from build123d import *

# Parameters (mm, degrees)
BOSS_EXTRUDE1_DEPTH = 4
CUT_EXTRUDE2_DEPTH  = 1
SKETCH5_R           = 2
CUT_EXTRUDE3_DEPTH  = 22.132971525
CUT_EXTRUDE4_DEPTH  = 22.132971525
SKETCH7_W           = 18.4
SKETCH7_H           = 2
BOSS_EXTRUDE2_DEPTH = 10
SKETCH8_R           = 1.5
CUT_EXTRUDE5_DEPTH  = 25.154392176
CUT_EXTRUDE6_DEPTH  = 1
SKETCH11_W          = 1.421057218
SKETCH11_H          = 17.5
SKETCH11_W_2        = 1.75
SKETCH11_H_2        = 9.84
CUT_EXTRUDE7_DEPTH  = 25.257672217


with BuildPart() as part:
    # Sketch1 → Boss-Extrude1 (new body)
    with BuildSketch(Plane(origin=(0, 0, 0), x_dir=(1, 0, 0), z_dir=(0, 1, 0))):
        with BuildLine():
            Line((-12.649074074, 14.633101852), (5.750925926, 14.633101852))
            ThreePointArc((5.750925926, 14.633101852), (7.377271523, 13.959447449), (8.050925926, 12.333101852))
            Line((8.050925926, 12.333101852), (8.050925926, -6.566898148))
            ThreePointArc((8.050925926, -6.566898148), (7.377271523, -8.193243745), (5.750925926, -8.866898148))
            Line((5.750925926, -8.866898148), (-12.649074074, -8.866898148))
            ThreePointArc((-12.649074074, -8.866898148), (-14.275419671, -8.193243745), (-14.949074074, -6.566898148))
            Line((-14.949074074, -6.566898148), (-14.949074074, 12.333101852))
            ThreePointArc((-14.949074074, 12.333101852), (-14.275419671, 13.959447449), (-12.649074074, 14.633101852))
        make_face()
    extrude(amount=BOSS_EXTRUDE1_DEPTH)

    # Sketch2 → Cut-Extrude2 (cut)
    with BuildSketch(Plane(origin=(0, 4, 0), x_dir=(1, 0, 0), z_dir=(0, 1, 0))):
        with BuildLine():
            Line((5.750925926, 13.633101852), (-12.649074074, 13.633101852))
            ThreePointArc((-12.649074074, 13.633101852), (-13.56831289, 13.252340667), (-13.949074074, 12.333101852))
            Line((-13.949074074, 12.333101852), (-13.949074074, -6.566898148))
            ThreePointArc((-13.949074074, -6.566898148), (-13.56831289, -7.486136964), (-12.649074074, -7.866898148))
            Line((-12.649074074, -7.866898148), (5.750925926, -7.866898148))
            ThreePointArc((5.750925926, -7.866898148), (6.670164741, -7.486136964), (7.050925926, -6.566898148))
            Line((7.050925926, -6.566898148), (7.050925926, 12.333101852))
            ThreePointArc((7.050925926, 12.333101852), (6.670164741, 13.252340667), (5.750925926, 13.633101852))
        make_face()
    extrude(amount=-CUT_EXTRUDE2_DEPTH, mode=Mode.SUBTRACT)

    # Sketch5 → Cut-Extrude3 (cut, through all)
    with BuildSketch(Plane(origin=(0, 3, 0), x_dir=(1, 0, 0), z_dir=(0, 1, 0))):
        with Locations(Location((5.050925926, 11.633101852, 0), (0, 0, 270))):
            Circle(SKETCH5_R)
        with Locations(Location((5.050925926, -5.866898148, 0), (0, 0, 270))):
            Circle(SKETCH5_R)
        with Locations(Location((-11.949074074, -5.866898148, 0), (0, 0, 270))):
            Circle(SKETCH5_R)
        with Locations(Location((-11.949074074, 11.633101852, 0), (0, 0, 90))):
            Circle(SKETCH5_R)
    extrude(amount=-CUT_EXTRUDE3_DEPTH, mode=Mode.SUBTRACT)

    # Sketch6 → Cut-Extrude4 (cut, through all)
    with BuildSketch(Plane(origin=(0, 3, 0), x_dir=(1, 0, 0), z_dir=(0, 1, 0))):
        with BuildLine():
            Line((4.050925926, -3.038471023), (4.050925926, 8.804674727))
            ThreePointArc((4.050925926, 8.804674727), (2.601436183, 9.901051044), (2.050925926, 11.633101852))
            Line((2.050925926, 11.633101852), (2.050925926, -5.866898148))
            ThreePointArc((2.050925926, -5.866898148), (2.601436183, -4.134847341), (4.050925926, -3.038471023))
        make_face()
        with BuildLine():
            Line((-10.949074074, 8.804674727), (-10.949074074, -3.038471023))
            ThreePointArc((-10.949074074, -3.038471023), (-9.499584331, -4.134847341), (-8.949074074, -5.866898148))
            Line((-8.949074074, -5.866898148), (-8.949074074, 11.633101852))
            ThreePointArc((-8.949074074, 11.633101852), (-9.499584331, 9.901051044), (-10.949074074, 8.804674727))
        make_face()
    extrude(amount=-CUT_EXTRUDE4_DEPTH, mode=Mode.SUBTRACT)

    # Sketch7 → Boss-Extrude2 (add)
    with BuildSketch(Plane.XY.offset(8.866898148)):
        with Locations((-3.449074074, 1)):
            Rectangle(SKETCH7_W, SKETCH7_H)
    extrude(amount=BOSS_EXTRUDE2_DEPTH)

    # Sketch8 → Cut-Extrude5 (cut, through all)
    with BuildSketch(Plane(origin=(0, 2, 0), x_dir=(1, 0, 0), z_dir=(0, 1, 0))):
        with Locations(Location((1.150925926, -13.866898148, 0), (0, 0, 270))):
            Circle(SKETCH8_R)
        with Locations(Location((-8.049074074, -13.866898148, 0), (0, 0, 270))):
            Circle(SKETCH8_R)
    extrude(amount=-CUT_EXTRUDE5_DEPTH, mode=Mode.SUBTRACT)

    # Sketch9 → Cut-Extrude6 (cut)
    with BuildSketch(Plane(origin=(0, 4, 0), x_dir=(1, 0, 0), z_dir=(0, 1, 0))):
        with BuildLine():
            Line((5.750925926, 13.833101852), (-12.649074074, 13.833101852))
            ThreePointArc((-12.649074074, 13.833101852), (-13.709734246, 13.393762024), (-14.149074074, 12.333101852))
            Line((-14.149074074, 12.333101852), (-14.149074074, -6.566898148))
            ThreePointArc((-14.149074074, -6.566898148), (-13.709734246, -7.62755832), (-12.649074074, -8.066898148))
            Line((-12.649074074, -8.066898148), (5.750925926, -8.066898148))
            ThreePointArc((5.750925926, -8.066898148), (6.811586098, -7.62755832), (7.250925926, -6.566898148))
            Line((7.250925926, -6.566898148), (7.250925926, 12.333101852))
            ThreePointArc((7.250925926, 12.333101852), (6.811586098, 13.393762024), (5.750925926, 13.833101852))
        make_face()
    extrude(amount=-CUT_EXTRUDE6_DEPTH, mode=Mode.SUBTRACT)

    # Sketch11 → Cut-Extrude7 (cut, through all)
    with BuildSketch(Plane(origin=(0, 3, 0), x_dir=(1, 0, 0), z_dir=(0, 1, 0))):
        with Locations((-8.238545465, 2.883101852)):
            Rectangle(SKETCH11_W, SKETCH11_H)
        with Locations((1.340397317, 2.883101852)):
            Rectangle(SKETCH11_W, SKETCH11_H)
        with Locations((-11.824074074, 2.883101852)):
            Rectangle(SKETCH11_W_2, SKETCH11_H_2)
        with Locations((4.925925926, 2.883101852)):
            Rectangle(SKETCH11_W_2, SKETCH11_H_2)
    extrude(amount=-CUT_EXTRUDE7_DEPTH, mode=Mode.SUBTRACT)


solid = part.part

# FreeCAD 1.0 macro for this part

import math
import FreeCAD as App
import Part
import Sketcher
from FreeCAD import Vector
Q = App.Units.Quantity

doc = App.newDocument("Part")
params = doc.addObject("Spreadsheet::Sheet", "Params")
for row, (alias, value) in enumerate([
    ("sketch1_radius", "2.3 mm"),
    ("sketch1_width", "18.4 mm"),
    ("sketch1_height", "18.9 mm"),
    ("pad1_length", "4 mm"),
    ("sketch2_radius", "1.3 mm"),
    ("sketch2_width", "18.4 mm"),
    ("sketch2_height", "18.9 mm"),
    ("pocket1_length", "1 mm"),
    ("sketch3_diameter", "4 mm"),
    ("sketch4_radius", "3 mm"),
    ("sketch4_height", "17.5 mm"),
    ("sketch5_height", "2 mm"),
    ("sketch5_width", "18.4 mm"),
    ("pad2_length", "10 mm"),
    ("sketch6_diameter", "3 mm"),
    ("sketch7_radius", "1.5 mm"),
    ("sketch7_width", "18.4 mm"),
    ("sketch7_height", "18.9 mm"),
    ("pocket5_length", "1 mm"),
    ("sketch8_height", "17.5 mm"),
    ("sketch8_width", "1.75 mm"),
    ("sketch8_height2", "9.84 mm"),
], start=1):
    params.set(f"A{row}", alias)
    params.set(f"B{row}", "=" + value)
    params.setAlias(f"B{row}", alias)

body = doc.addObject("PartDesign::Body", "Body")

# Sketch on XZ plane
sketch1 = doc.addObject("Sketcher::SketchObject", "Sketch")
body.addObject(sketch1)
sketch1.AttachmentSupport = (doc.XZ_Plane, [""])
sketch1.MapMode = "FlatFace"
sketch1.addGeometry([
    Part.LineSegment(Vector(5.750926, -14.633102, 0), Vector(-12.649074, -14.633102, 0)),  # 0
    Part.ArcOfCircle(Part.Circle(Vector(-12.649074, -12.333102, 0), Vector(0, 0, 1), 2.3), math.radians(180), math.radians(270)),  # 1
    Part.LineSegment(Vector(-14.949074, -12.333102, 0), Vector(-14.949074, 6.566898, 0)),  # 2
    Part.ArcOfCircle(Part.Circle(Vector(-12.649074, 6.566898, 0), Vector(0, 0, 1), 2.3), math.radians(90), math.radians(180)),  # 3
    Part.LineSegment(Vector(-12.649074, 8.866898, 0), Vector(5.750926, 8.866898, 0)),  # 4
    Part.ArcOfCircle(Part.Circle(Vector(5.750926, 6.566898, 0), Vector(0, 0, 1), 2.3), math.radians(0), math.radians(90)),  # 5
    Part.LineSegment(Vector(8.050926, 6.566898, 0), Vector(8.050926, -12.333102, 0)),  # 6
    Part.ArcOfCircle(Part.Circle(Vector(5.750926, -12.333102, 0), Vector(0, 0, 1), 2.3), math.radians(-90), math.radians(0)),  # 7
], False)
sketch1.addConstraint([
    Sketcher.Constraint("Tangent", 0, 2, 1, 2),
    Sketcher.Constraint("Tangent", 1, 1, 2, 1),
    Sketcher.Constraint("Tangent", 2, 2, 3, 2),
    Sketcher.Constraint("Tangent", 3, 1, 4, 1),
    Sketcher.Constraint("Tangent", 4, 2, 5, 2),
    Sketcher.Constraint("Tangent", 5, 1, 6, 1),
    Sketcher.Constraint("Tangent", 6, 2, 7, 2),
    Sketcher.Constraint("Tangent", 7, 1, 0, 1),
    Sketcher.Constraint("Horizontal", 0),
    Sketcher.Constraint("Vertical", 2),
    Sketcher.Constraint("Horizontal", 4),
    Sketcher.Constraint("Vertical", 6),
    Sketcher.Constraint("Equal", 1, 3),
    Sketcher.Constraint("Equal", 3, 5),
    Sketcher.Constraint("Equal", 5, 7),
    Sketcher.Constraint("Radius", 1, Q("2.3 mm")),
    Sketcher.Constraint("DistanceX", 0, 2, 0, 1, Q("18.4 mm")),
    Sketcher.Constraint("DistanceY", 2, 1, 2, 2, Q("18.9 mm")),
    Sketcher.Constraint("DistanceY", 1, 3, -1, 1, Q("12.333102 mm")),
    Sketcher.Constraint("DistanceX", 1, 3, -1, 1, Q("12.649074 mm")),
])
sketch1.setExpression("Constraints[15]", "Params.sketch1_radius")
sketch1.setExpression("Constraints[16]", "Params.sketch1_width")
sketch1.setExpression("Constraints[17]", "Params.sketch1_height")
pad1 = doc.addObject("PartDesign::Pad", "Pad")
body.addObject(pad1)
pad1.Profile = sketch1
pad1.setExpression("Length", "Params.pad1_length")
pad1.Reversed = True

# Sketch on XZ plane
sketch2 = doc.addObject("Sketcher::SketchObject", "Sketch001")
body.addObject(sketch2)
sketch2.AttachmentSupport = (doc.XZ_Plane, [""])
sketch2.MapMode = "FlatFace"
sketch2.AttachmentOffset = App.Placement(Vector(0, 0, -4), App.Rotation())
sketch2.addGeometry([
    Part.LineSegment(Vector(5.750926, -13.633102, 0), Vector(-12.649074, -13.633102, 0)),  # 0
    Part.ArcOfCircle(Part.Circle(Vector(-12.649074, -12.333102, 0), Vector(0, 0, 1), 1.3), math.radians(180), math.radians(270)),  # 1
    Part.LineSegment(Vector(-13.949074, -12.333102, 0), Vector(-13.949074, 6.566898, 0)),  # 2
    Part.ArcOfCircle(Part.Circle(Vector(-12.649074, 6.566898, 0), Vector(0, 0, 1), 1.3), math.radians(90), math.radians(180)),  # 3
    Part.LineSegment(Vector(-12.649074, 7.866898, 0), Vector(5.750926, 7.866898, 0)),  # 4
    Part.ArcOfCircle(Part.Circle(Vector(5.750926, 6.566898, 0), Vector(0, 0, 1), 1.3), math.radians(0), math.radians(90)),  # 5
    Part.LineSegment(Vector(7.050926, 6.566898, 0), Vector(7.050926, -12.333102, 0)),  # 6
    Part.ArcOfCircle(Part.Circle(Vector(5.750926, -12.333102, 0), Vector(0, 0, 1), 1.3), math.radians(-90), math.radians(0)),  # 7
], False)
sketch2.addConstraint([
    Sketcher.Constraint("Tangent", 0, 2, 1, 2),
    Sketcher.Constraint("Tangent", 1, 1, 2, 1),
    Sketcher.Constraint("Tangent", 2, 2, 3, 2),
    Sketcher.Constraint("Tangent", 3, 1, 4, 1),
    Sketcher.Constraint("Tangent", 4, 2, 5, 2),
    Sketcher.Constraint("Tangent", 5, 1, 6, 1),
    Sketcher.Constraint("Tangent", 6, 2, 7, 2),
    Sketcher.Constraint("Tangent", 7, 1, 0, 1),
    Sketcher.Constraint("Horizontal", 0),
    Sketcher.Constraint("Vertical", 2),
    Sketcher.Constraint("Horizontal", 4),
    Sketcher.Constraint("Vertical", 6),
    Sketcher.Constraint("Equal", 1, 3),
    Sketcher.Constraint("Equal", 3, 5),
    Sketcher.Constraint("Equal", 5, 7),
    Sketcher.Constraint("Radius", 1, Q("1.3 mm")),
    Sketcher.Constraint("DistanceX", 0, 2, 0, 1, Q("18.4 mm")),
    Sketcher.Constraint("DistanceY", 2, 1, 2, 2, Q("18.9 mm")),
    Sketcher.Constraint("DistanceY", 1, 3, -1, 1, Q("12.333102 mm")),
    Sketcher.Constraint("DistanceX", 1, 3, -1, 1, Q("12.649074 mm")),
])
sketch2.setExpression("Constraints[15]", "Params.sketch2_radius")
sketch2.setExpression("Constraints[16]", "Params.sketch2_width")
sketch2.setExpression("Constraints[17]", "Params.sketch2_height")
pocket1 = doc.addObject("PartDesign::Pocket", "Pocket")
body.addObject(pocket1)
pocket1.Profile = sketch2
pocket1.setExpression("Length", "Params.pocket1_length")
pocket1.Reversed = True

# Sketch on XZ plane
sketch3 = doc.addObject("Sketcher::SketchObject", "Sketch002")
body.addObject(sketch3)
sketch3.AttachmentSupport = (doc.XZ_Plane, [""])
sketch3.MapMode = "FlatFace"
sketch3.AttachmentOffset = App.Placement(Vector(0, 0, -3), App.Rotation())
sketch3.addGeometry([
    Part.Circle(Vector(5.050926, -11.633102, 0), Vector(0, 0, 1), 2),
    Part.Circle(Vector(5.050926, 5.866898, 0), Vector(0, 0, 1), 2),
    Part.Circle(Vector(-11.949074, 5.866898, 0), Vector(0, 0, 1), 2),
    Part.Circle(Vector(-11.949074, -11.633102, 0), Vector(0, 0, 1), 2),
], False)
sketch3.addConstraint([
    Sketcher.Constraint("Equal", 0, 1),
    Sketcher.Constraint("Equal", 1, 2),
    Sketcher.Constraint("Equal", 2, 3),
    Sketcher.Constraint("Horizontal", 1, 3, 2, 3),
    Sketcher.Constraint("Horizontal", 0, 3, 3, 3),
    Sketcher.Constraint("Vertical", 0, 3, 1, 3),
    Sketcher.Constraint("Vertical", 2, 3, 3, 3),
    Sketcher.Constraint("Diameter", 0, Q("4 mm")),
    Sketcher.Constraint("DistanceX", 2, 3, 1, 3, Q("17 mm")),
    Sketcher.Constraint("DistanceY", 0, 3, 1, 3, Q("17.5 mm")),
    Sketcher.Constraint("DistanceY", 0, 3, -1, 1, Q("11.633102 mm")),
    Sketcher.Constraint("DistanceX", -1, 1, 0, 3, Q("5.050926 mm")),
])
sketch3.setExpression("Constraints[7]", "Params.sketch3_diameter")
pocket2 = doc.addObject("PartDesign::Pocket", "Pocket001")
body.addObject(pocket2)
pocket2.Profile = sketch3
pocket2.Type = "ThroughAll"
pocket2.Reversed = True

# Sketch on XZ plane
sketch4 = doc.addObject("Sketcher::SketchObject", "Sketch003")
body.addObject(sketch4)
sketch4.AttachmentSupport = (doc.XZ_Plane, [""])
sketch4.MapMode = "FlatFace"
sketch4.AttachmentOffset = App.Placement(Vector(0, 0, -3), App.Rotation())
sketch4.addGeometry([
    Part.LineSegment(Vector(4.050926, 3.038471, 0), Vector(4.050926, -8.804675, 0)),  # 0
    Part.ArcOfCircle(Part.Circle(Vector(5.050926, -11.633102, 0), Vector(0, 0, 1), 3), math.radians(109.471221), math.radians(180)),  # 1
    Part.LineSegment(Vector(2.050926, -11.633102, 0), Vector(2.050926, 5.866898, 0)),  # 2
    Part.ArcOfCircle(Part.Circle(Vector(5.050926, 5.866898, 0), Vector(0, 0, 1), 3), math.radians(-180), math.radians(-109.471221)),  # 3
    Part.LineSegment(Vector(-10.949074, -8.804675, 0), Vector(-10.949074, 3.038471, 0)),  # 4
    Part.ArcOfCircle(Part.Circle(Vector(-11.949074, 5.866898, 0), Vector(0, 0, 1), 3), math.radians(-70.528779), math.radians(0)),  # 5
    Part.LineSegment(Vector(-8.949074, 5.866898, 0), Vector(-8.949074, -11.633102, 0)),  # 6
    Part.ArcOfCircle(Part.Circle(Vector(-11.949074, -11.633102, 0), Vector(0, 0, 1), 3), math.radians(0), math.radians(70.528779)),  # 7
], False)
sketch4.addConstraint([
    Sketcher.Constraint("Coincident", 0, 2, 1, 1),
    Sketcher.Constraint("Tangent", 1, 2, 2, 1),
    Sketcher.Constraint("Tangent", 2, 2, 3, 1),
    Sketcher.Constraint("Coincident", 3, 2, 0, 1),
    Sketcher.Constraint("Coincident", 4, 2, 5, 1),
    Sketcher.Constraint("Tangent", 5, 2, 6, 1),
    Sketcher.Constraint("Tangent", 6, 2, 7, 1),
    Sketcher.Constraint("Coincident", 7, 2, 4, 1),
    Sketcher.Constraint("Vertical", 0),
    Sketcher.Constraint("Vertical", 2),
    Sketcher.Constraint("Vertical", 4),
    Sketcher.Constraint("Vertical", 6),
    Sketcher.Constraint("Equal", 1, 3),
    Sketcher.Constraint("Equal", 3, 5),
    Sketcher.Constraint("Equal", 5, 7),
    Sketcher.Constraint("Horizontal", 3, 3, 5, 3),
    Sketcher.Constraint("Horizontal", 1, 3, 7, 3),
    Sketcher.Constraint("Horizontal", 3, 2, 4, 2),
    Sketcher.Constraint("Radius", 1, Q("3 mm")),
    Sketcher.Constraint("DistanceY", 2, 1, 2, 2, Q("17.5 mm")),
    Sketcher.Constraint("DistanceX", 5, 3, 3, 3, Q("17 mm")),
    Sketcher.Constraint("DistanceX", 0, 2, 1, 3, Q("1 mm")),
    Sketcher.Constraint("DistanceY", 1, 3, -1, 1, Q("11.633102 mm")),
    Sketcher.Constraint("DistanceX", -1, 1, 1, 3, Q("5.050926 mm")),
])
sketch4.setExpression("Constraints[18]", "Params.sketch4_radius")
sketch4.setExpression("Constraints[19]", "Params.sketch4_height")
pocket3 = doc.addObject("PartDesign::Pocket", "Pocket002")
body.addObject(pocket3)
pocket3.Profile = sketch4
pocket3.Type = "ThroughAll"
pocket3.Reversed = True

# Sketch on XY plane
sketch5 = doc.addObject("Sketcher::SketchObject", "Sketch004")
body.addObject(sketch5)
sketch5.AttachmentSupport = (doc.XY_Plane, [""])
sketch5.MapMode = "FlatFace"
sketch5.AttachmentOffset = App.Placement(Vector(0, 0, 8.866898), App.Rotation())
sketch5.addGeometry([
    Part.LineSegment(Vector(-12.649074, 2, 0), Vector(-12.649074, 0, 0)),
    Part.LineSegment(Vector(-12.649074, 0, 0), Vector(5.750926, 0, 0)),
    Part.LineSegment(Vector(5.750926, 0, 0), Vector(5.750926, 2, 0)),
    Part.LineSegment(Vector(5.750926, 2, 0), Vector(-12.649074, 2, 0)),
], False)
sketch5.addConstraint([
    Sketcher.Constraint("Coincident", 0, 2, 1, 1),
    Sketcher.Constraint("Coincident", 1, 2, 2, 1),
    Sketcher.Constraint("Coincident", 2, 2, 3, 1),
    Sketcher.Constraint("Coincident", 3, 2, 0, 1),
    Sketcher.Constraint("Vertical", 0),
    Sketcher.Constraint("Horizontal", 1),
    Sketcher.Constraint("Vertical", 2),
    Sketcher.Constraint("Horizontal", 3),
    Sketcher.Constraint("PointOnObject", 0, 2, -1),
    Sketcher.Constraint("DistanceY", 0, 2, 0, 1, Q("2 mm")),
    Sketcher.Constraint("DistanceX", 1, 1, 1, 2, Q("18.4 mm")),
    Sketcher.Constraint("DistanceX", 0, 2, -1, 1, Q("12.649074 mm")),
])
sketch5.setExpression("Constraints[9]", "Params.sketch5_height")
sketch5.setExpression("Constraints[10]", "Params.sketch5_width")
pad2 = doc.addObject("PartDesign::Pad", "Pad001")
body.addObject(pad2)
pad2.Profile = sketch5
pad2.setExpression("Length", "Params.pad2_length")

# Sketch on XZ plane
sketch6 = doc.addObject("Sketcher::SketchObject", "Sketch005")
body.addObject(sketch6)
sketch6.AttachmentSupport = (doc.XZ_Plane, [""])
sketch6.MapMode = "FlatFace"
sketch6.AttachmentOffset = App.Placement(Vector(0, 0, -2), App.Rotation())
sketch6.addGeometry([
    Part.Circle(Vector(1.150926, 13.866898, 0), Vector(0, 0, 1), 1.5),
    Part.Circle(Vector(-8.049074, 13.866898, 0), Vector(0, 0, 1), 1.5),
], False)
sketch6.addConstraint([
    Sketcher.Constraint("Equal", 0, 1),
    Sketcher.Constraint("Horizontal", 0, 3, 1, 3),
    Sketcher.Constraint("Diameter", 0, Q("3 mm")),
    Sketcher.Constraint("DistanceX", 1, 3, 0, 3, Q("9.2 mm")),
    Sketcher.Constraint("DistanceY", -1, 1, 0, 3, Q("13.866898 mm")),
    Sketcher.Constraint("DistanceX", -1, 1, 0, 3, Q("1.150926 mm")),
])
sketch6.setExpression("Constraints[2]", "Params.sketch6_diameter")
pocket4 = doc.addObject("PartDesign::Pocket", "Pocket003")
body.addObject(pocket4)
pocket4.Profile = sketch6
pocket4.Type = "ThroughAll"
pocket4.Reversed = True

# Sketch on XZ plane
sketch7 = doc.addObject("Sketcher::SketchObject", "Sketch006")
body.addObject(sketch7)
sketch7.AttachmentSupport = (doc.XZ_Plane, [""])
sketch7.MapMode = "FlatFace"
sketch7.AttachmentOffset = App.Placement(Vector(0, 0, -4), App.Rotation())
sketch7.addGeometry([
    Part.LineSegment(Vector(5.750926, -13.833102, 0), Vector(-12.649074, -13.833102, 0)),  # 0
    Part.ArcOfCircle(Part.Circle(Vector(-12.649074, -12.333102, 0), Vector(0, 0, 1), 1.5), math.radians(180), math.radians(270)),  # 1
    Part.LineSegment(Vector(-14.149074, -12.333102, 0), Vector(-14.149074, 6.566898, 0)),  # 2
    Part.ArcOfCircle(Part.Circle(Vector(-12.649074, 6.566898, 0), Vector(0, 0, 1), 1.5), math.radians(90), math.radians(180)),  # 3
    Part.LineSegment(Vector(-12.649074, 8.066898, 0), Vector(5.750926, 8.066898, 0)),  # 4
    Part.ArcOfCircle(Part.Circle(Vector(5.750926, 6.566898, 0), Vector(0, 0, 1), 1.5), math.radians(0), math.radians(90)),  # 5
    Part.LineSegment(Vector(7.250926, 6.566898, 0), Vector(7.250926, -12.333102, 0)),  # 6
    Part.ArcOfCircle(Part.Circle(Vector(5.750926, -12.333102, 0), Vector(0, 0, 1), 1.5), math.radians(-90), math.radians(0)),  # 7
], False)
sketch7.addConstraint([
    Sketcher.Constraint("Tangent", 0, 2, 1, 2),
    Sketcher.Constraint("Tangent", 1, 1, 2, 1),
    Sketcher.Constraint("Tangent", 2, 2, 3, 2),
    Sketcher.Constraint("Tangent", 3, 1, 4, 1),
    Sketcher.Constraint("Tangent", 4, 2, 5, 2),
    Sketcher.Constraint("Tangent", 5, 1, 6, 1),
    Sketcher.Constraint("Tangent", 6, 2, 7, 2),
    Sketcher.Constraint("Tangent", 7, 1, 0, 1),
    Sketcher.Constraint("Horizontal", 0),
    Sketcher.Constraint("Vertical", 2),
    Sketcher.Constraint("Horizontal", 4),
    Sketcher.Constraint("Vertical", 6),
    Sketcher.Constraint("Equal", 1, 3),
    Sketcher.Constraint("Equal", 3, 5),
    Sketcher.Constraint("Equal", 5, 7),
    Sketcher.Constraint("Radius", 1, Q("1.5 mm")),
    Sketcher.Constraint("DistanceX", 0, 2, 0, 1, Q("18.4 mm")),
    Sketcher.Constraint("DistanceY", 2, 1, 2, 2, Q("18.9 mm")),
    Sketcher.Constraint("DistanceY", 1, 3, -1, 1, Q("12.333102 mm")),
    Sketcher.Constraint("DistanceX", 1, 3, -1, 1, Q("12.649074 mm")),
])
sketch7.setExpression("Constraints[15]", "Params.sketch7_radius")
sketch7.setExpression("Constraints[16]", "Params.sketch7_width")
sketch7.setExpression("Constraints[17]", "Params.sketch7_height")
pocket5 = doc.addObject("PartDesign::Pocket", "Pocket004")
body.addObject(pocket5)
pocket5.Profile = sketch7
pocket5.setExpression("Length", "Params.pocket5_length")
pocket5.Reversed = True

# Sketch on XZ plane
sketch8 = doc.addObject("Sketcher::SketchObject", "Sketch007")
body.addObject(sketch8)
sketch8.AttachmentSupport = (doc.XZ_Plane, [""])
sketch8.MapMode = "FlatFace"
sketch8.AttachmentOffset = App.Placement(Vector(0, 0, -3), App.Rotation())
sketch8.addGeometry([
    Part.LineSegment(Vector(-8.949074, -11.633102, 0), Vector(-8.949074, 5.866898, 0)),  # 0
    Part.LineSegment(Vector(-8.949074, 5.866898, 0), Vector(-7.528017, 5.866898, 0)),  # 1
    Part.LineSegment(Vector(-7.528017, 5.866898, 0), Vector(-7.528017, -11.633102, 0)),  # 2
    Part.LineSegment(Vector(-7.528017, -11.633102, 0), Vector(-8.949074, -11.633102, 0)),  # 3
    Part.LineSegment(Vector(0.629869, -11.633102, 0), Vector(0.629869, 5.866898, 0)),  # 4
    Part.LineSegment(Vector(0.629869, 5.866898, 0), Vector(2.050926, 5.866898, 0)),  # 5
    Part.LineSegment(Vector(2.050926, 5.866898, 0), Vector(2.050926, -11.633102, 0)),  # 6
    Part.LineSegment(Vector(2.050926, -11.633102, 0), Vector(0.629869, -11.633102, 0)),  # 7
    Part.LineSegment(Vector(-12.699074, -7.803102, 0), Vector(-12.699074, 2.036898, 0)),  # 8
    Part.LineSegment(Vector(-12.699074, 2.036898, 0), Vector(-10.949074, 2.036898, 0)),  # 9
    Part.LineSegment(Vector(-10.949074, 2.036898, 0), Vector(-10.949074, -7.803102, 0)),  # 10
    Part.LineSegment(Vector(-10.949074, -7.803102, 0), Vector(-12.699074, -7.803102, 0)),  # 11
    Part.LineSegment(Vector(4.050926, -7.803102, 0), Vector(4.050926, 2.036898, 0)),  # 12
    Part.LineSegment(Vector(4.050926, 2.036898, 0), Vector(5.800926, 2.036898, 0)),  # 13
    Part.LineSegment(Vector(5.800926, 2.036898, 0), Vector(5.800926, -7.803102, 0)),  # 14
    Part.LineSegment(Vector(5.800926, -7.803102, 0), Vector(4.050926, -7.803102, 0)),  # 15
], False)
sketch8.addConstraint([
    Sketcher.Constraint("Coincident", 0, 2, 1, 1),
    Sketcher.Constraint("Coincident", 1, 2, 2, 1),
    Sketcher.Constraint("Coincident", 2, 2, 3, 1),
    Sketcher.Constraint("Coincident", 3, 2, 0, 1),
    Sketcher.Constraint("Coincident", 4, 2, 5, 1),
    Sketcher.Constraint("Coincident", 5, 2, 6, 1),
    Sketcher.Constraint("Coincident", 6, 2, 7, 1),
    Sketcher.Constraint("Coincident", 7, 2, 4, 1),
    Sketcher.Constraint("Coincident", 8, 2, 9, 1),
    Sketcher.Constraint("Coincident", 9, 2, 10, 1),
    Sketcher.Constraint("Coincident", 10, 2, 11, 1),
    Sketcher.Constraint("Coincident", 11, 2, 8, 1),
    Sketcher.Constraint("Coincident", 12, 2, 13, 1),
    Sketcher.Constraint("Coincident", 13, 2, 14, 1),
    Sketcher.Constraint("Coincident", 14, 2, 15, 1),
    Sketcher.Constraint("Coincident", 15, 2, 12, 1),
    Sketcher.Constraint("Vertical", 0),
    Sketcher.Constraint("Horizontal", 1),
    Sketcher.Constraint("Vertical", 2),
    Sketcher.Constraint("Horizontal", 3),
    Sketcher.Constraint("Vertical", 4),
    Sketcher.Constraint("Horizontal", 5),
    Sketcher.Constraint("Vertical", 6),
    Sketcher.Constraint("Horizontal", 7),
    Sketcher.Constraint("Vertical", 8),
    Sketcher.Constraint("Horizontal", 9),
    Sketcher.Constraint("Vertical", 10),
    Sketcher.Constraint("Horizontal", 11),
    Sketcher.Constraint("Vertical", 12),
    Sketcher.Constraint("Horizontal", 13),
    Sketcher.Constraint("Vertical", 14),
    Sketcher.Constraint("Horizontal", 15),
    Sketcher.Constraint("Horizontal", 1, 2, 4, 2),
    Sketcher.Constraint("Horizontal", 3, 2, 6, 2),
    Sketcher.Constraint("Horizontal", 9, 2, 12, 2),
    Sketcher.Constraint("Horizontal", 11, 2, 14, 2),
    Sketcher.Constraint("Equal", 3, 5),
    Sketcher.Constraint("Equal", 11, 13),
    Sketcher.Constraint("DistanceY", 0, 1, 0, 2, Q("17.5 mm")),
    Sketcher.Constraint("DistanceX", 0, 2, 5, 2, Q("11 mm")),
    Sketcher.Constraint("DistanceX", 9, 2, 0, 2, Q("2 mm")),
    Sketcher.Constraint("DistanceX", 5, 2, 12, 2, Q("2 mm")),
    Sketcher.Constraint("DistanceX", 9, 1, 9, 2, Q("1.75 mm")),
    Sketcher.Constraint("DistanceY", 8, 1, 8, 2, Q("9.84 mm")),
    Sketcher.Constraint("DistanceY", 8, 2, 0, 2, Q("3.83 mm")),
    Sketcher.Constraint("DistanceY", -1, 1, 0, 2, Q("5.866898 mm")),
    Sketcher.Constraint("DistanceX", 1, 1, 1, 2, Q("1.421057 mm")),
    Sketcher.Constraint("DistanceX", -1, 1, 4, 2, Q("0.629869 mm")),
])
sketch8.setExpression("Constraints[38]", "Params.sketch8_height")
sketch8.setExpression("Constraints[42]", "Params.sketch8_width")
sketch8.setExpression("Constraints[43]", "Params.sketch8_height2")
pocket6 = doc.addObject("PartDesign::Pocket", "Pocket005")
body.addObject(pocket6)
pocket6.Profile = sketch8
pocket6.Type = "ThroughAll"
pocket6.Reversed = True

doc.recompute()
